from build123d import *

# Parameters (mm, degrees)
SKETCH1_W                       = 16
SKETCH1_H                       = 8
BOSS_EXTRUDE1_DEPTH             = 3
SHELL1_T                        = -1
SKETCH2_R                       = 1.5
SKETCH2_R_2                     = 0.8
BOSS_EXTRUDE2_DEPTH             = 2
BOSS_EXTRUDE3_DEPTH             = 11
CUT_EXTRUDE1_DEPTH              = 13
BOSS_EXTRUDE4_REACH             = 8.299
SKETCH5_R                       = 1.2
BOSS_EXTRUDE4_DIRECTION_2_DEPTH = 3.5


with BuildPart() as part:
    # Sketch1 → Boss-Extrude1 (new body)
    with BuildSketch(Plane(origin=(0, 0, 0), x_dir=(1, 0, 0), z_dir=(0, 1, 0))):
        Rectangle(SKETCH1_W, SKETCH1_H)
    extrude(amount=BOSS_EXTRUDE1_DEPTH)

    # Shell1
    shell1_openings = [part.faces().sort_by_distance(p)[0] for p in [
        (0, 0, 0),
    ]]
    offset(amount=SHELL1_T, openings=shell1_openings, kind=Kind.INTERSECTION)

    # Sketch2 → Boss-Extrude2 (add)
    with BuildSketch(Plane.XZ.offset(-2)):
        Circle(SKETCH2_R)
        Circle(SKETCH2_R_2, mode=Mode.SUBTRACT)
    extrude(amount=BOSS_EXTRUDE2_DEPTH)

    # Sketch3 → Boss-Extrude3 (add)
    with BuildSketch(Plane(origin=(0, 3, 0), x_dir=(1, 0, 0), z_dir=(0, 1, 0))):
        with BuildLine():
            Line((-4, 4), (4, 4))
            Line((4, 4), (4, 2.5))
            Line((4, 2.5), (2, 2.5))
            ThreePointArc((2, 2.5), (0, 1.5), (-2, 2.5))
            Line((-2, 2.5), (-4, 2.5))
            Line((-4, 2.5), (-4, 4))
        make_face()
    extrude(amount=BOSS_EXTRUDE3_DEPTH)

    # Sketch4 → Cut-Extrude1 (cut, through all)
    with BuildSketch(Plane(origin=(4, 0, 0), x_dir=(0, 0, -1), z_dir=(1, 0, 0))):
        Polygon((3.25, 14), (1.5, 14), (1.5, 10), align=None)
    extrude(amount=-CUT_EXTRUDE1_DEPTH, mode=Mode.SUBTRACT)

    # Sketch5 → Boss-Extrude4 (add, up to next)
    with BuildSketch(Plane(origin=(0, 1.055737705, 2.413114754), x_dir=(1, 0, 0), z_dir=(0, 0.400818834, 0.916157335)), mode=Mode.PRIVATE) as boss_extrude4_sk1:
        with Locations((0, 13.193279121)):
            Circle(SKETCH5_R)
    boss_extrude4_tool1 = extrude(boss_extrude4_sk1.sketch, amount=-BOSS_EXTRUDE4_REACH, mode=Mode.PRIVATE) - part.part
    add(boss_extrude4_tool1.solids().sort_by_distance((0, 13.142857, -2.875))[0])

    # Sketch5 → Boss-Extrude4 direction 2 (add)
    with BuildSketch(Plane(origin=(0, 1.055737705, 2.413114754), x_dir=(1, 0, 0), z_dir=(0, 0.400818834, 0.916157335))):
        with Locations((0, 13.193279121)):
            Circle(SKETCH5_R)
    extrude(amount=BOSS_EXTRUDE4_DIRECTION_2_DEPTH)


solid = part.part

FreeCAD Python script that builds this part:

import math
import FreeCAD as App
import Part
import Sketcher
from FreeCAD import Vector


def faces_at(feature, points):
    """Names of the faces that lie closest to the given points."""
    faces = feature.Shape.Faces
    near = lambda p: min(range(len(faces)), key=lambda i: faces[i].distToShape(Part.Vertex(*p))[0])
    return sorted({f"Face{near(p) + 1}" for p in points})


def add_polygon(sketch, points):
    """Adds a closed chain of lines whose ends are joined by coincident constraints."""
    first, n = sketch.GeometryCount, len(points)
    for a, b in zip(points, points[1:] + points[:1]):
        sketch.addGeometry(Part.LineSegment(App.Vector(*a, 0), App.Vector(*b, 0)), False)
    for i in range(n):
        sketch.addConstraint(Sketcher.Constraint("Coincident", first + i, 2, first + (i + 1) % n, 1))

doc = App.newDocument("Part")
params = doc.addObject("Spreadsheet::Sheet", "Params")
for row, (alias, value) in enumerate([
    ("sketch1_width", "16 mm"),
    ("sketch1_height", "8 mm"),
    ("pad1_length", "3 mm"),
    ("thickness_wall", "1 mm"),
    ("sketch2_diameter", "3 mm"),
    ("sketch2_diameter2", "1.6 mm"),
    ("pad2_length", "2 mm"),
    ("sketch3_radius", "2.5 mm"),
    ("sketch3_width", "8 mm"),
    ("sketch3_width2", "2 mm"),
    ("pad3_length", "11 mm"),
    ("sketch4_width", "4 mm"),
    ("sketch4_height", "1.75 mm"),
    ("sketch5_diameter", "2.4 mm"),
    ("sketch6_diameter", "2.4 mm"),
    ("pad5_length", "3.5 mm"),
], start=1):
    params.set(f"A{row}", alias)
    params.set(f"B{row}", "=" + value)
    params.setAlias(f"B{row}", alias)

body = doc.addObject("PartDesign::Body", "Body")

sketch1 = body.newObject("Sketcher::SketchObject", "Sketch")
sketch1.AttachmentSupport = (doc.getObject("XZ_Plane"), [""])
sketch1.MapMode = "FlatFace"
add_polygon(sketch1, [(-8, -4), (-8, 4), (8, 4), (8, -4)])
sketch1.addConstraint(Sketcher.Constraint("Vertical", 0))
sketch1.addConstraint(Sketcher.Constraint("Horizontal", 1))
sketch1.addConstraint(Sketcher.Constraint("Vertical", 2))
sketch1.addConstraint(Sketcher.Constraint("Horizontal", 3))
sketch1.addConstraint(Sketcher.Constraint("Symmetric", 0, 2, 2, 2, -1, 1))
sketch1.addConstraint(Sketcher.Constraint("DistanceX", 1, 1, 1, 2, 16.0))
sketch1.addConstraint(Sketcher.Constraint("DistanceY", 0, 1, 0, 2, 8.0))
sketch1.setExpression("Constraints[9]", "Params.sketch1_width")
sketch1.setExpression("Constraints[10]", "Params.sketch1_height")
pad1 = body.newObject("PartDesign::Pad", "Pad")
pad1.Profile = sketch1
pad1.setExpression("Length", "Params.pad1_length")
pad1.Reversed = True
doc.recompute()

thickness = body.newObject("PartDesign::Thickness", "Thickness")
thickness.Base = (pad1, faces_at(pad1, [(0, 0, 0)]))
thickness.setExpression("Value", "Params.thickness_wall")
thickness.Reversed = True
thickness.Join = "Intersection"

sketch2 = body.newObject("Sketcher::SketchObject", "Sketch001")
sketch2.AttachmentSupport = (doc.getObject("XZ_Plane"), [""])
sketch2.MapMode = "FlatFace"
sketch2.AttachmentOffset = App.Placement(Vector(0, 0, -2), App.Rotation())
sketch2.addGeometry(Part.Circle(Vector(0, 0, 0), Vector(0, 0, 1), 1.5), False)
sketch2.addGeometry(Part.Circle(Vector(0, 0, 0), Vector(0, 0, 1), 0.8), False)
sketch2.addConstraint(Sketcher.Constraint("Coincident", 0, 3, -1, 1))
sketch2.addConstraint(Sketcher.Constraint("Coincident", 1, 3, -1, 1))
sketch2.addConstraint(Sketcher.Constraint("Diameter", 0, 3.0))
sketch2.addConstraint(Sketcher.Constraint("Diameter", 1, 1.6))
sketch2.setExpression("Constraints[2]", "Params.sketch2_diameter")
sketch2.setExpression("Constraints[3]", "Params.sketch2_diameter2")
pad2 = body.newObject("PartDesign::Pad", "Pad001")
pad2.Profile = sketch2
pad2.setExpression("Length", "Params.pad2_length")

sketch3 = body.newObject("Sketcher::SketchObject", "Sketch002")
sketch3.AttachmentSupport = (doc.getObject("XZ_Plane"), [""])
sketch3.MapMode = "FlatFace"
sketch3.AttachmentOffset = App.Placement(Vector(0, 0, -3), App.Rotation())
sketch3.addGeometry(Part.LineSegment(Vector(4, -4, 0), Vector(-4, -4, 0)), False)
sketch3.addGeometry(Part.LineSegment(Vector(-4, -4, 0), Vector(-4, -2.5, 0)), False)
sketch3.addGeometry(Part.LineSegment(Vector(-4, -2.5, 0), Vector(-2, -2.5, 0)), False)
sketch3.addGeometry(Part.ArcOfCircle(Part.Circle(Vector(0, -4, 0), Vector(0, 0, 1), 2.5), math.radians(36.869898), math.radians(143.130102)), False)
sketch3.addGeometry(Part.LineSegment(Vector(2, -2.5, 0), Vector(4, -2.5, 0)), False)
sketch3.addGeometry(Part.LineSegment(Vector(4, -2.5, 0), Vector(4, -4, 0)), False)
sketch3.addConstraint(Sketcher.Constraint("Coincident", 0, 2, 1, 1))
sketch3.addConstraint(Sketcher.Constraint("Coincident", 1, 2, 2, 1))
sketch3.addConstraint(Sketcher.Constraint("Coincident", 2, 2, 3, 2))
sketch3.addConstraint(Sketcher.Constraint("Coincident", 3, 1, 4, 1))
sketch3.addConstraint(Sketcher.Constraint("Coincident", 4, 2, 5, 1))
sketch3.addConstraint(Sketcher.Constraint("Coincident", 5, 2, 0, 1))
sketch3.addConstraint(Sketcher.Constraint("Horizontal", 0))
sketch3.addConstraint(Sketcher.Constraint("Vertical", 1))
sketch3.addConstraint(Sketcher.Constraint("Horizontal", 2))
sketch3.addConstraint(Sketcher.Constraint("Horizontal", 4))
sketch3.addConstraint(Sketcher.Constraint("Vertical", 5))
sketch3.addConstraint(Sketcher.Constraint("Symmetric", 2, 2, 3, 1, -2))
sketch3.addConstraint(Sketcher.Constraint("Horizontal", 3, 3, 0, 2))
sketch3.addConstraint(Sketcher.Constraint("Equal", 2, 4))
sketch3.addConstraint(Sketcher.Constraint("Radius", 3, 2.5))
sketch3.addConstraint(Sketcher.Constraint("DistanceX", 0, 2, 0, 1, 8.0))
sketch3.addConstraint(Sketcher.Constraint("DistanceX", 2, 1, 2, 2, 2.0))
sketch3.addConstraint(Sketcher.Constraint("DistanceY", 3, 3, -1, 1, 4.0))
sketch3.setExpression("Constraints[14]", "Params.sketch3_radius")
sketch3.setExpression("Constraints[15]", "Params.sketch3_width")
sketch3.setExpression("Constraints[16]", "Params.sketch3_width2")
pad3 = body.newObject("PartDesign::Pad", "Pad002")
pad3.Profile = sketch3
pad3.setExpression("Length", "Params.pad3_length")
pad3.Reversed = True

sketch4 = body.newObject("Sketcher::SketchObject", "Sketch003")
sketch4.AttachmentSupport = (doc.getObject("YZ_Plane"), [""])
sketch4.MapMode = "FlatFace"
sketch4.AttachmentOffset = App.Placement(Vector(0, 0, 4), App.Rotation())
add_polygon(sketch4, [(14, -3.25), (14, -1.5), (10, -1.5)])
sketch4.addConstraint(Sketcher.Constraint("Vertical", 0))
sketch4.addConstraint(Sketcher.Constraint("Horizontal", 1))
sketch4.addConstraint(Sketcher.Constraint("DistanceX", 1, 2, 1, 1, 4.0))
sketch4.addConstraint(Sketcher.Constraint("DistanceX", -1, 1, 0, 2, 14.0))
sketch4.addConstraint(Sketcher.Constraint("DistanceY", 0, 1, 0, 2, 1.75))
sketch4.addConstraint(Sketcher.Constraint("DistanceY", 0, 2, -1, 1, 1.5))
sketch4.setExpression("Constraints[5]", "Params.sketch4_width")
sketch4.setExpression("Constraints[7]", "Params.sketch4_height")
pocket1 = body.newObject("PartDesign::Pocket", "Pocket")
pocket1.Profile = sketch4
pocket1.Type = "ThroughAll"

sketch5 = body.newObject("Sketcher::SketchObject", "Sketch004")
sketch5.Placement = App.Placement(Vector(0, 1.055738, 2.413115), App.Rotation(Vector(1, 0, 0), Vector(0, 0.916157335, -0.400818834), Vector(0, 0.400818834, 0.916157335), "ZXY"))
sketch5.addGeometry(Part.Circle(Vector(0, 13.193279, 0), Vector(0, 0, 1), 1.2), False)
sketch5.addConstraint(Sketcher.Constraint("PointOnObject", 0, 3, -2))
sketch5.addConstraint(Sketcher.Constraint("Diameter", 0, 2.4))
sketch5.addConstraint(Sketcher.Constraint("DistanceY", -1, 1, 0, 3, 13.193279))
sketch5.setExpression("Constraints[1]", "Params.sketch5_diameter")
pad4 = body.newObject("PartDesign::Pad", "Pad003")
pad4.Profile = sketch5
pad4.Type = "UpToFirst"
pad4.Reversed = True

sketch6 = body.newObject("Sketcher::SketchObject", "Sketch005")
sketch6.Placement = App.Placement(Vector(0, 1.055738, 2.413115), App.Rotation(Vector(1, 0, 0), Vector(0, 0.916157335, -0.400818834), Vector(0, 0.400818834, 0.916157335), "ZXY"))
sketch6.addGeometry(Part.Circle(Vector(0, 13.193279, 0), Vector(0, 0, 1), 1.2), False)
sketch6.addConstraint(Sketcher.Constraint("PointOnObject", 0, 3, -2))
sketch6.addConstraint(Sketcher.Constraint("Diameter", 0, 2.4))
sketch6.addConstraint(Sketcher.Constraint("DistanceY", -1, 1, 0, 3, 13.193279))
sketch6.setExpression("Constraints[1]", "Params.sketch6_diameter")
pad5 = body.newObject("PartDesign::Pad", "Pad004")
pad5.Profile = sketch6
pad5.setExpression("Length", "Params.pad5_length")

doc.recompute()
